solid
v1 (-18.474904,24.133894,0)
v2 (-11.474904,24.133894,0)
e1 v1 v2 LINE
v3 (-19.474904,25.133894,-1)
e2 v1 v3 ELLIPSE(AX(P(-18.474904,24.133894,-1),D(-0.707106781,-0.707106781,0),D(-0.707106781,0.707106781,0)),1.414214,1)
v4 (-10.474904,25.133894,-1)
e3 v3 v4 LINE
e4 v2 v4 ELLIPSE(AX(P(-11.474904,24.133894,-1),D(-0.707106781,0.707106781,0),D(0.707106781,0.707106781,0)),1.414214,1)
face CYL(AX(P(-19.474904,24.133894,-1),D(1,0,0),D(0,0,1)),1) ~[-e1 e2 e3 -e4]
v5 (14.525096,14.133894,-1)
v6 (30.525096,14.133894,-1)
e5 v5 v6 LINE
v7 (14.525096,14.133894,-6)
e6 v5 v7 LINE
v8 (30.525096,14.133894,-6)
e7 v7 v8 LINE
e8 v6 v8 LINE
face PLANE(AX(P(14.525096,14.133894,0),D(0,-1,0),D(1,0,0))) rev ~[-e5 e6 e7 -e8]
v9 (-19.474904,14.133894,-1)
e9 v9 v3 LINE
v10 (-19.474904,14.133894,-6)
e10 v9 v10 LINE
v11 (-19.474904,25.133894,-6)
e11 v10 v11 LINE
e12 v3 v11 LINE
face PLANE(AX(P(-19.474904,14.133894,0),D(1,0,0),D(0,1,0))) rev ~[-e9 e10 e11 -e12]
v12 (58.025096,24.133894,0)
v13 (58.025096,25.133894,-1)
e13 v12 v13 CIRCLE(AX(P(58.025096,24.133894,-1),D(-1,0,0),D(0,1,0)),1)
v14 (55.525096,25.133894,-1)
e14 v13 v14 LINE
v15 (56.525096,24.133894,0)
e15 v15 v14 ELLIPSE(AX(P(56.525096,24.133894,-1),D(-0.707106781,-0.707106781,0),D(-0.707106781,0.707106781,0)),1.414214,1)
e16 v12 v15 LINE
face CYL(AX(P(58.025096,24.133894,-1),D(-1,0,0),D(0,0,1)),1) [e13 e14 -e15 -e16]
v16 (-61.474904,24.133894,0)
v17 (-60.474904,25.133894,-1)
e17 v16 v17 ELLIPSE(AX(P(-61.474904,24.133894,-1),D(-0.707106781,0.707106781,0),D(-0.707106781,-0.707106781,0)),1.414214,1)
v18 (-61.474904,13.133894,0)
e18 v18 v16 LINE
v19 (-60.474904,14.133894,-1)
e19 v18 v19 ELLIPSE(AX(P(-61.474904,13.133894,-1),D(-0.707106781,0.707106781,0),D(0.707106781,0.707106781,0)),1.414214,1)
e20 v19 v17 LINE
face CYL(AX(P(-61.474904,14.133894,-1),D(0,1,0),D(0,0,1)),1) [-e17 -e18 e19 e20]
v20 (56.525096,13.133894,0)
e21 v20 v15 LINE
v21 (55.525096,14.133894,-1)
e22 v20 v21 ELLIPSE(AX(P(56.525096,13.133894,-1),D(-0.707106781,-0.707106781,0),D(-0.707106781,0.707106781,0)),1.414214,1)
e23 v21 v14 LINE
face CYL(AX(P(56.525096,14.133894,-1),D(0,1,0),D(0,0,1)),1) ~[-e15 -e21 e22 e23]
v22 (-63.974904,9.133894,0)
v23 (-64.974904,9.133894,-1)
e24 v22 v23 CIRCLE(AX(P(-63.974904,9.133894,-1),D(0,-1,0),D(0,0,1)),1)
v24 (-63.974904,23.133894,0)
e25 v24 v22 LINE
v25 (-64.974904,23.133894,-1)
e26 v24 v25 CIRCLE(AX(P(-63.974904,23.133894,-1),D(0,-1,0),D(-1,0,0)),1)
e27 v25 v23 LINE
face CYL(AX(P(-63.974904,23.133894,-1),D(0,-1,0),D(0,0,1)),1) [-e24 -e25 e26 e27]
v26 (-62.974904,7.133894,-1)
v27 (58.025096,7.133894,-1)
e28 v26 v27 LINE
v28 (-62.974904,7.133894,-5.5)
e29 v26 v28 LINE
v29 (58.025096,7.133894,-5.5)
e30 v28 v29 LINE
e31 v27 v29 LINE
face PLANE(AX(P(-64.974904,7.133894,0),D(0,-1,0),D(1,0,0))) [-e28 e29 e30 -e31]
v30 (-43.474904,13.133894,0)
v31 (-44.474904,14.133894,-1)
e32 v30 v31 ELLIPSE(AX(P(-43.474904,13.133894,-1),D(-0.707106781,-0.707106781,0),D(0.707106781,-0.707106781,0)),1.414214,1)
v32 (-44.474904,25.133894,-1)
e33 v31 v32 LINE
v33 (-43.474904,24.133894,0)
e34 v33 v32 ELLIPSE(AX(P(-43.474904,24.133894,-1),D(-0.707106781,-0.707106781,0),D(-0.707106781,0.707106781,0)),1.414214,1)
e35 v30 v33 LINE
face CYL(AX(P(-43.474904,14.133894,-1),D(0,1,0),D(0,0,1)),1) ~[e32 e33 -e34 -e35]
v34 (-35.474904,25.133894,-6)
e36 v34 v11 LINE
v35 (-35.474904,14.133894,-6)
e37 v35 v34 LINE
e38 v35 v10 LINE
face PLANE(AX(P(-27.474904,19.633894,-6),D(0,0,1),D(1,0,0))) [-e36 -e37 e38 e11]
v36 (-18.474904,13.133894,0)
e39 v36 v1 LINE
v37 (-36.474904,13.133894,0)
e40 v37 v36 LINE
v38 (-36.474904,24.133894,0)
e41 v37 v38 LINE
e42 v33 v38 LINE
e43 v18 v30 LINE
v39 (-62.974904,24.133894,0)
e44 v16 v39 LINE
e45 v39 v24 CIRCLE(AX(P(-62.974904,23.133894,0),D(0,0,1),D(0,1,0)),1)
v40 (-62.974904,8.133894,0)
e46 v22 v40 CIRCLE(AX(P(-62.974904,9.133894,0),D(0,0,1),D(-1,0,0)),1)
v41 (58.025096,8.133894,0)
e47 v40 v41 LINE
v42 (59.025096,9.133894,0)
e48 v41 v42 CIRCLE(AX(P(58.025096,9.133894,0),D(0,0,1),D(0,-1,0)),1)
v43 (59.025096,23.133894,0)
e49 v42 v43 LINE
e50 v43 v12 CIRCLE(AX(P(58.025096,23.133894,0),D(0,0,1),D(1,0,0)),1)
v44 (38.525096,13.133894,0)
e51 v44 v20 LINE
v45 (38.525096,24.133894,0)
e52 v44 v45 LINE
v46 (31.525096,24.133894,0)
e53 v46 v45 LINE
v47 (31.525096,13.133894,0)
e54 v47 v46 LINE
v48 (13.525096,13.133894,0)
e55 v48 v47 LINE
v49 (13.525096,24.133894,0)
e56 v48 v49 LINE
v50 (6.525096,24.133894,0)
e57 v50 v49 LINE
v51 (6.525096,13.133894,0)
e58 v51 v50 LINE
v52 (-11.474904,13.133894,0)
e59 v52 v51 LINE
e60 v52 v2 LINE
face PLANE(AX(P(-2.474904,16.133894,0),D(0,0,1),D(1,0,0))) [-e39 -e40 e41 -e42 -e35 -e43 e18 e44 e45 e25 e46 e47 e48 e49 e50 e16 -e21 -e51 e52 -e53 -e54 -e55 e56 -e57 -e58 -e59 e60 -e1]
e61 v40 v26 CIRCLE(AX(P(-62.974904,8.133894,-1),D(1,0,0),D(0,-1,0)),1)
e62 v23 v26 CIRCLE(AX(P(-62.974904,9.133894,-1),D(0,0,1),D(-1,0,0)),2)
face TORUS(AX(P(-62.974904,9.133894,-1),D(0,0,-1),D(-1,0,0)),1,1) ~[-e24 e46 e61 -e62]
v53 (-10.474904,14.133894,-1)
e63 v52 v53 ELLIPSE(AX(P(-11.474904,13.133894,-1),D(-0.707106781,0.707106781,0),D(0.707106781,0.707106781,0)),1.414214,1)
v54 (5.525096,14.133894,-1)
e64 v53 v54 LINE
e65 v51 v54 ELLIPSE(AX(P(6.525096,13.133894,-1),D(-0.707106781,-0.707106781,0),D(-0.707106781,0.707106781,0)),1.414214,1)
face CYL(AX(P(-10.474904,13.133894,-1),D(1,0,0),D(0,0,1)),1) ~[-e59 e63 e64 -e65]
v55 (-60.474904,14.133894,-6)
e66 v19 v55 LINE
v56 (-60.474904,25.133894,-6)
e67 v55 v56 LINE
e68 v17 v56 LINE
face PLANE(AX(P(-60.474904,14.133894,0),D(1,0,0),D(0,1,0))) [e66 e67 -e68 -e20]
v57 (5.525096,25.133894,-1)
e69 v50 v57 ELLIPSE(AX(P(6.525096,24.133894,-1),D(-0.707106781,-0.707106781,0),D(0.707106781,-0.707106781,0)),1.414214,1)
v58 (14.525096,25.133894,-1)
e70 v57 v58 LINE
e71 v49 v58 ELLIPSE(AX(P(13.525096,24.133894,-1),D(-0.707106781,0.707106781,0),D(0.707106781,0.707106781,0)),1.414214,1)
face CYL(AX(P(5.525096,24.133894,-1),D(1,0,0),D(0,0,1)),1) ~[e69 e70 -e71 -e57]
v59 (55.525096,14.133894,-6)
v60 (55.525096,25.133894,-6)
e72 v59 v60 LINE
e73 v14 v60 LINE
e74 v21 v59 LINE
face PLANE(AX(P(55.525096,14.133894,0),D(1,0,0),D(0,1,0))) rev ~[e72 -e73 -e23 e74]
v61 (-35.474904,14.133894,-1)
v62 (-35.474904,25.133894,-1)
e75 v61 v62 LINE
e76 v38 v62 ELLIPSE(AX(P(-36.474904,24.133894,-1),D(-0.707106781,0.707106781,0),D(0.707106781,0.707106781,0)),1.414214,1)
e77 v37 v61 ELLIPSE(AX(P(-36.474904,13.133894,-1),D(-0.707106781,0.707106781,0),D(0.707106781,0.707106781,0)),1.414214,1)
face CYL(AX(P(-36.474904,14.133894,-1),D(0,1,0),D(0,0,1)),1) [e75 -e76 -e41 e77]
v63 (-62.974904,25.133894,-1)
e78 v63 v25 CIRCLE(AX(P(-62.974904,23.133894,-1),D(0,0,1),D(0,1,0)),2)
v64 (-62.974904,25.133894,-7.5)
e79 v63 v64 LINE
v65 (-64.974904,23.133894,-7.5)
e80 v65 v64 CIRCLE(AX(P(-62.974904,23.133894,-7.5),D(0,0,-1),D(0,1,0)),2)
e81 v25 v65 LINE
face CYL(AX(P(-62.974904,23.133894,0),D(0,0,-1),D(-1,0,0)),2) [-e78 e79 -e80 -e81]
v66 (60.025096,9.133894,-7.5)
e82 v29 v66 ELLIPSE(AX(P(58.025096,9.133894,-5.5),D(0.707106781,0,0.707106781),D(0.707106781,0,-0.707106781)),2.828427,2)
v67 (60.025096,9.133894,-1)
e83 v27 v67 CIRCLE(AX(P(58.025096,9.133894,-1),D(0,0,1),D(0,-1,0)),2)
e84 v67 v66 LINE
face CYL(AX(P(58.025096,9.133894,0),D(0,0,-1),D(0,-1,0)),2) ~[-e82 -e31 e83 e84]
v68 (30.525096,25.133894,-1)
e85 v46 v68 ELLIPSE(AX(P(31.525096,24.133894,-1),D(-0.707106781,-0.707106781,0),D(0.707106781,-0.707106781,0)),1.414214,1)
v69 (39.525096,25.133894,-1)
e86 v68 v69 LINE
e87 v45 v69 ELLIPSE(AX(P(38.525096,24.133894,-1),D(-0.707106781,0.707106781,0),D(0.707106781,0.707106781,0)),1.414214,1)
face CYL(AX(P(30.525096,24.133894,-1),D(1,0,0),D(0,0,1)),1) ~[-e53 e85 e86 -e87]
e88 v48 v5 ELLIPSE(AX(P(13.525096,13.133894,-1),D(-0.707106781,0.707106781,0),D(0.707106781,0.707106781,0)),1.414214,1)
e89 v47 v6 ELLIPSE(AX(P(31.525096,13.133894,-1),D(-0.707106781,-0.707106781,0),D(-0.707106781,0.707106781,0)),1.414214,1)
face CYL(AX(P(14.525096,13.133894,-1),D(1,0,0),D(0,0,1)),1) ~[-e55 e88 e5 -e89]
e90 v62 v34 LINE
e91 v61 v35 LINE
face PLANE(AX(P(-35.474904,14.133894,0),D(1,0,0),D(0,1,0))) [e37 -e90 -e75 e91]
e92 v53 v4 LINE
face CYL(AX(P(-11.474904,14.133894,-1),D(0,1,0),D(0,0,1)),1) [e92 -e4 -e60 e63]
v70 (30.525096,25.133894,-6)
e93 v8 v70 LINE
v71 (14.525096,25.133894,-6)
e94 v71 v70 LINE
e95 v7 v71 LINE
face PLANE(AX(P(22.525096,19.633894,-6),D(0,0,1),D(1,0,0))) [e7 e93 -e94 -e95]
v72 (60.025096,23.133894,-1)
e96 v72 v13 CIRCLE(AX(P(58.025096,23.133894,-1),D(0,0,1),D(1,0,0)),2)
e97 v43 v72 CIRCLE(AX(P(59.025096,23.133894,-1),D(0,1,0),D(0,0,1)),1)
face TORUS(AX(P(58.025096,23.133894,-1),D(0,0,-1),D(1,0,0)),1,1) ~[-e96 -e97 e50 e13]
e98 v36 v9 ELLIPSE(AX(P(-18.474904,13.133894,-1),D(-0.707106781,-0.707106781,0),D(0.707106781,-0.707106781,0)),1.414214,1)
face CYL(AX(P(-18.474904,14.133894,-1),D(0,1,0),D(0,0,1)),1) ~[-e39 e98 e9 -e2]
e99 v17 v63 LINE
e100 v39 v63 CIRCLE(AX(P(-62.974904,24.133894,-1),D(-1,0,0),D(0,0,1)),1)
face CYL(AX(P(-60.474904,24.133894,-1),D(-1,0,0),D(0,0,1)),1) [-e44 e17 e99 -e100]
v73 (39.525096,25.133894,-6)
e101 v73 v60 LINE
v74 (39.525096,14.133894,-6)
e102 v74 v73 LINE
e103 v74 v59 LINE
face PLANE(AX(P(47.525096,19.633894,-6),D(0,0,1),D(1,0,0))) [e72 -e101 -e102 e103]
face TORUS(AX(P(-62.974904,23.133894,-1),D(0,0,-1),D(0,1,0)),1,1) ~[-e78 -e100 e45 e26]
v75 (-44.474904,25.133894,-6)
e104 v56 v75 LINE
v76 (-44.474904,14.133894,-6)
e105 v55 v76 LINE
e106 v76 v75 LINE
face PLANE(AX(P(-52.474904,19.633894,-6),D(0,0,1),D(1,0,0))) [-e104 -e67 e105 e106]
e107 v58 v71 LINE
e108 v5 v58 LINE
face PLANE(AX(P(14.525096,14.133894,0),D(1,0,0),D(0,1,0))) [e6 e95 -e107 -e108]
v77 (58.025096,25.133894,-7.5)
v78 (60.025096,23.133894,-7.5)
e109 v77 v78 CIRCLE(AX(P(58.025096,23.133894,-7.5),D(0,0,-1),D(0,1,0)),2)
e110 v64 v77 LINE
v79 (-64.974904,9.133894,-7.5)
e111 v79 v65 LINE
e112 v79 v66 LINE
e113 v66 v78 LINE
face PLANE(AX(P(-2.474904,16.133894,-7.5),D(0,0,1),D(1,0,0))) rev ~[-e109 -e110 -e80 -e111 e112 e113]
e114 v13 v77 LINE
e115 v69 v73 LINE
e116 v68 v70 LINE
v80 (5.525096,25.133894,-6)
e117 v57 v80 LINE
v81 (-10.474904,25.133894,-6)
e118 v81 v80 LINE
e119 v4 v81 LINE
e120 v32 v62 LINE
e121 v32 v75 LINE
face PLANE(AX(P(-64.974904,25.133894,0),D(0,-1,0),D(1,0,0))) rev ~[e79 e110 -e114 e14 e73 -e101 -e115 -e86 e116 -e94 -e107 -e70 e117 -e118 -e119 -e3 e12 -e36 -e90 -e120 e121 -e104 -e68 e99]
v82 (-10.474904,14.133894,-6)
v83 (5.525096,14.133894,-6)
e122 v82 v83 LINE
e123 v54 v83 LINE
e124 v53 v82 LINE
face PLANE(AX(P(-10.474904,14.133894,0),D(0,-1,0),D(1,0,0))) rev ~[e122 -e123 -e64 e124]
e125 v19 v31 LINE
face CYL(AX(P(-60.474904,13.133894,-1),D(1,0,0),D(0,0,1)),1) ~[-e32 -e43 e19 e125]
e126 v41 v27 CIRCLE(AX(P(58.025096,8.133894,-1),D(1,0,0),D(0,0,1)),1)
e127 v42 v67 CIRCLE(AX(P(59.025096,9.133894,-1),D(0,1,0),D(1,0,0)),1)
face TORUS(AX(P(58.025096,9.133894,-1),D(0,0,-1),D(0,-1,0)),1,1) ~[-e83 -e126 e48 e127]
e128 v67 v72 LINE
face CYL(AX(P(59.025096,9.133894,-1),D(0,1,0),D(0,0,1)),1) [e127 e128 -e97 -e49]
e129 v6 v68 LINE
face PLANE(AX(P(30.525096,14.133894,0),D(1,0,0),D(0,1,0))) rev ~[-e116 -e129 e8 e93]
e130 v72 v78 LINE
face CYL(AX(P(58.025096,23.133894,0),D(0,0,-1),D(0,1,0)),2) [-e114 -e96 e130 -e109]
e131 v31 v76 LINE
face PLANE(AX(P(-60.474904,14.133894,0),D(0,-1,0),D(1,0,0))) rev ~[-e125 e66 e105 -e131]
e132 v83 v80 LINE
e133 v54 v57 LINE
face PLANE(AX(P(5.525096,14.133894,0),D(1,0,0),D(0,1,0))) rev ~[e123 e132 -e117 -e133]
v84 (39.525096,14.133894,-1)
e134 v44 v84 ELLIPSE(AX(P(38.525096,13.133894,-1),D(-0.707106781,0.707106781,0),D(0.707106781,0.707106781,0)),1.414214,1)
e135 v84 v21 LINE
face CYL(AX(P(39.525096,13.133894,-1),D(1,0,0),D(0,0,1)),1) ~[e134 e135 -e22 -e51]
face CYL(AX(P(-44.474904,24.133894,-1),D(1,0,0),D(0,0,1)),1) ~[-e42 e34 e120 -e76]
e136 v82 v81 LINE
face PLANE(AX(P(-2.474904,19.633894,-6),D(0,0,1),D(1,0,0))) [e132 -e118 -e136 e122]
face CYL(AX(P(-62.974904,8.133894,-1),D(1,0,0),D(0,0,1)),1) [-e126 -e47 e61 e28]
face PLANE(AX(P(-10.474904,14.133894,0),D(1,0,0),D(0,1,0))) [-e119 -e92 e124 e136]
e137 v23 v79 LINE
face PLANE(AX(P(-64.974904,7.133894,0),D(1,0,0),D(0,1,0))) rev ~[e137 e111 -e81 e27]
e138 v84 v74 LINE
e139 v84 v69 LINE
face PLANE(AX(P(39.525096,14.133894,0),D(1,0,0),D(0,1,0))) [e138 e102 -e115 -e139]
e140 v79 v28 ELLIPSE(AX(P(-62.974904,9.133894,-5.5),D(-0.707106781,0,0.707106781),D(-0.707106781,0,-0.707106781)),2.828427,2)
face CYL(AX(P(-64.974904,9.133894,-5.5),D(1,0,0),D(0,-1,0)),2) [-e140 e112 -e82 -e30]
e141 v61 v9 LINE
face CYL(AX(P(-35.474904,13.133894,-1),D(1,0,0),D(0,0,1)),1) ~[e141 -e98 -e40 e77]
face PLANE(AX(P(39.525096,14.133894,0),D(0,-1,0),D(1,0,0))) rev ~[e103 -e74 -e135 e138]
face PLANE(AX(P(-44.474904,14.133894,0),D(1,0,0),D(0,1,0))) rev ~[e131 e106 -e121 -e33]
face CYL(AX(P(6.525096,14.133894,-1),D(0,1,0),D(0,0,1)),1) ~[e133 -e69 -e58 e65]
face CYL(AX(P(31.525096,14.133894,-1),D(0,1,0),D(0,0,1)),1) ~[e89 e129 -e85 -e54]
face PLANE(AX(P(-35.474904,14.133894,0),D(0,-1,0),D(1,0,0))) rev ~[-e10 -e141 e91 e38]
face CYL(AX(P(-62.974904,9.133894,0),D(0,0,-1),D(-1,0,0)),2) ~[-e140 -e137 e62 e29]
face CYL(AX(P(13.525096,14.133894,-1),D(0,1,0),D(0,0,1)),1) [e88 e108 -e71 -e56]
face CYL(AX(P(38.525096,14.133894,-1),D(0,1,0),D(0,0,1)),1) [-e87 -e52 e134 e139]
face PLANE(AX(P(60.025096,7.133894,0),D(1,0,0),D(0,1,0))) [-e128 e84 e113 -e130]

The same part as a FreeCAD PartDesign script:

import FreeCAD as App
import Part
import Sketcher

V = App.Vector
Q = App.Units.Quantity


def edges_at(feature, points):
    """Names of the edges that pass closest to the given points."""
    edges = feature.Shape.Edges
    near = lambda p: min(range(len(edges)), key=lambda i: edges[i].distToShape(Part.Vertex(*p))[0])
    return sorted({f"Edge{near(p) + 1}" for p in points})


def add_polygon(sketch, points):
    """Adds a closed chain of lines whose ends are joined by coincident constraints."""
    first, n = sketch.GeometryCount, len(points)
    for a, b in zip(points, points[1:] + points[:1]):
        sketch.addGeometry(Part.LineSegment(App.Vector(*a, 0), App.Vector(*b, 0)), False)
    for i in range(n):
        sketch.addConstraint(Sketcher.Constraint("Coincident", first + i, 2, first + (i + 1) % n, 1))

doc = App.newDocument("Part")
body = doc.addObject("PartDesign::Body", "Body")

sketch1 = body.newObject("Sketcher::SketchObject", "Sketch")
sketch1.AttachmentSupport = (doc.getObject("XY_Plane"), [""])
sketch1.MapMode = "FlatFace"
add_polygon(sketch1, [(-65, 25), (-65, 7), (60, 7), (60, 25)])
sketch1.addConstraint([
    Sketcher.Constraint("Vertical", 0),
    Sketcher.Constraint("Horizontal", 1),
    Sketcher.Constraint("Vertical", 2),
    Sketcher.Constraint("Horizontal", 3),
    Sketcher.Constraint("DistanceX", 1, 1, 1, 2, Q("125 mm")),
    Sketcher.Constraint("DistanceY", 0, 2, 0, 1, Q("18 mm")),
    Sketcher.Constraint("DistanceX", 0, 2, -1, 1, Q("64.974904 mm")),
    Sketcher.Constraint("DistanceY", -1, 1, 0, 2, Q("7.133894 mm")),
])
pad1 = body.newObject("PartDesign::Pad", "Pad")
pad1.Profile = sketch1
pad1.Length = 7.5
pad1.Reversed = True

sketch2 = body.newObject("Sketcher::SketchObject", "Sketch001")
sketch2.AttachmentSupport = (doc.getObject("XY_Plane"), [""])
sketch2.MapMode = "FlatFace"
add_polygon(sketch2, [(-60, 25), (-60, 14), (-44, 14), (-44, 25)])
add_polygon(sketch2, [(-35, 25), (-35, 14), (-19, 14), (-19, 25)])
add_polygon(sketch2, [(-10, 25), (-10, 14), (6, 14), (6, 25)])
add_polygon(sketch2, [(15, 25), (15, 14), (31, 14), (31, 25)])
add_polygon(sketch2, [(40, 25), (40, 14), (56, 14), (56, 25)])
sketch2.addConstraint([
    Sketcher.Constraint("Vertical", 0),
    Sketcher.Constraint("Horizontal", 1),
    Sketcher.Constraint("Vertical", 2),
    Sketcher.Constraint("Horizontal", 3),
    Sketcher.Constraint("Vertical", 4),
    Sketcher.Constraint("Horizontal", 5),
    Sketcher.Constraint("Vertical", 6),
    Sketcher.Constraint("Horizontal", 7),
    Sketcher.Constraint("Vertical", 8),
    Sketcher.Constraint("Horizontal", 9),
    Sketcher.Constraint("Vertical", 10),
    Sketcher.Constraint("Horizontal", 11),
    Sketcher.Constraint("Vertical", 12),
    Sketcher.Constraint("Horizontal", 13),
    Sketcher.Constraint("Vertical", 14),
    Sketcher.Constraint("Horizontal", 15),
    Sketcher.Constraint("Vertical", 16),
    Sketcher.Constraint("Horizontal", 17),
    Sketcher.Constraint("Vertical", 18),
    Sketcher.Constraint("Horizontal", 19),
    Sketcher.Constraint("Horizontal", 1, 2, 4, 2),
    Sketcher.Constraint("Horizontal", 3, 2, 6, 2),
    Sketcher.Constraint("Horizontal", 5, 2, 8, 2),
    Sketcher.Constraint("Horizontal", 7, 2, 10, 2),
    Sketcher.Constraint("Horizontal", 9, 2, 12, 2),
    Sketcher.Constraint("Horizontal", 11, 2, 14, 2),
    Sketcher.Constraint("Horizontal", 13, 2, 16, 2),
    Sketcher.Constraint("Horizontal", 15, 2, 18, 2),
    Sketcher.Constraint("Equal", 3, 5),
    Sketcher.Constraint("Equal", 7, 9),
    Sketcher.Constraint("Equal", 11, 13),
    Sketcher.Constraint("Equal", 15, 17),
    Sketcher.Constraint("DistanceX", 1, 1, 1, 2, Q("16 mm")),
    Sketcher.Constraint("DistanceY", 0, 2, 0, 1, Q("11 mm")),
    Sketcher.Constraint("DistanceX", 1, 2, 4, 2, Q("9 mm")),
    Sketcher.Constraint("DistanceX", 5, 2, 8, 2, Q("9 mm")),
    Sketcher.Constraint("DistanceX", 9, 2, 12, 2, Q("9 mm")),
    Sketcher.Constraint("DistanceX", 13, 2, 16, 2, Q("9 mm")),
    Sketcher.Constraint("DistanceX", 0, 2, -1, 1, Q("60.474904 mm")),
    Sketcher.Constraint("DistanceY", -1, 1, 0, 2, Q("14.133894 mm")),
])
pocket1 = body.newObject("PartDesign::Pocket", "Pocket")
pocket1.Profile = sketch2
pocket1.Length = 6
doc.recompute()

fillet = body.newObject("PartDesign::Fillet", "Fillet")
fillet.Base = (pocket1, edges_at(pocket1, [
    (60.025, 25.134, -3.75),
    (60.025, 7.134, -3.75),
    (-64.975, 25.134, -3.75),
    (-64.975, 7.134, -3.75),
    (-2.475, 7.134, -7.5),
]))
fillet.Radius = 2
doc.recompute()

fillet2 = body.newObject("PartDesign::Fillet", "Fillet001")
fillet2.Base = (fillet, edges_at(fillet, [
    (60.025, 16.134, 0),
    (59.439, 7.72, 0),
    (59.439, 24.548, 0),
    (-2.475, 7.134, 0),
    (56.775, 25.134, 0),
    (-64.389, 7.72, 0),
    (55.525, 19.634, 0),
    (-64.975, 16.134, 0),
    (47.525, 14.134, 0),
    (-64.389, 24.548, 0),
    (39.525, 19.634, 0),
    (-61.725, 25.134, 0),
    (35.025, 25.134, 0),
    (-60.475, 19.634, 0),
    (30.525, 19.634, 0),
    (-52.475, 14.134, 0),
    (22.525, 14.134, 0),
    (-44.475, 19.634, 0),
    (14.525, 19.634, 0),
    (-39.975, 25.134, 0),
    (10.025, 25.134, 0),
    (-35.475, 19.634, 0),
    (5.525, 19.634, 0),
    (-27.475, 14.134, 0),
    (-2.475, 14.134, 0),
    (-19.475, 19.634, 0),
    (-10.475, 19.634, 0),
    (-14.975, 25.134, 0),
]))
fillet2.Radius = 1

doc.recompute()
